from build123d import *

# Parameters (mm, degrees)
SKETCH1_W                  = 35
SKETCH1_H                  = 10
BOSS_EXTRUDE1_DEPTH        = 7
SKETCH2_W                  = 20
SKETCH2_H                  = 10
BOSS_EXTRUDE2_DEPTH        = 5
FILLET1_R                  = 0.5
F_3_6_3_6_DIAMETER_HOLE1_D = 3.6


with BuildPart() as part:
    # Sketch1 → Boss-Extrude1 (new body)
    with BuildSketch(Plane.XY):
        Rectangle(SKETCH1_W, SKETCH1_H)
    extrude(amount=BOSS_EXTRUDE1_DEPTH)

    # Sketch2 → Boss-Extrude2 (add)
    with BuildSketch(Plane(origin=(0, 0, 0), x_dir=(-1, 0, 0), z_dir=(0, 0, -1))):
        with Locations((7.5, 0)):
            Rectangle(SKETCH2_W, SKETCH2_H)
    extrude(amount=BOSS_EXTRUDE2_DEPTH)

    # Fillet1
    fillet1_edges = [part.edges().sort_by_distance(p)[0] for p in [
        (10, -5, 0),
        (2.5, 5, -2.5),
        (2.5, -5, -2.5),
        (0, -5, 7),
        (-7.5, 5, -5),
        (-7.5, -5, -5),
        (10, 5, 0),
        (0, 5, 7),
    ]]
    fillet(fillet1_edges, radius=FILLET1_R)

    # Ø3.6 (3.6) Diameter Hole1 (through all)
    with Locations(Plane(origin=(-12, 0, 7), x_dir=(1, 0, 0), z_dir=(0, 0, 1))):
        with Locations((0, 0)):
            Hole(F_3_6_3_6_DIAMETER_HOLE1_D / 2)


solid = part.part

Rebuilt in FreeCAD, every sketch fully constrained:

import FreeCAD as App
import Part
import Sketcher


def edges_at(feature, points):
    """Names of the edges that pass closest to the given points."""
    edges = feature.Shape.Edges
    near = lambda p: min(range(len(edges)), key=lambda i: edges[i].distToShape(Part.Vertex(*p))[0])
    return sorted({f"Edge{near(p) + 1}" for p in points})

doc = App.newDocument("Part")
body = doc.addObject("PartDesign::Body", "Body")

# Sketch on XY plane
sketch1 = body.newObject("Sketcher::SketchObject", "Sketch")
sketch1.AttachmentSupport = (doc.getObject("XY_Plane"), [""])
sketch1.MapMode = "FlatFace"
sketch1.addGeometry(Part.LineSegment(App.Vector(-17.5, 5, 0), App.Vector(-17.5, -5, 0)), False)
sketch1.addGeometry(Part.LineSegment(App.Vector(-17.5, -5, 0), App.Vector(17.5, -5, 0)), False)
sketch1.addGeometry(Part.LineSegment(App.Vector(17.5, -5, 0), App.Vector(17.5, 5, 0)), False)
sketch1.addGeometry(Part.LineSegment(App.Vector(17.5, 5, 0), App.Vector(-17.5, 5, 0)), False)
sketch1.addConstraint(Sketcher.Constraint("Coincident", 0, 2, 1, 1))
sketch1.addConstraint(Sketcher.Constraint("Coincident", 1, 2, 2, 1))
sketch1.addConstraint(Sketcher.Constraint("Coincident", 2, 2, 3, 1))
sketch1.addConstraint(Sketcher.Constraint("Coincident", 3, 2, 0, 1))
sketch1.addConstraint(Sketcher.Constraint("Vertical", 0))
sketch1.addConstraint(Sketcher.Constraint("Horizontal", 1))
sketch1.addConstraint(Sketcher.Constraint("Vertical", 2))
sketch1.addConstraint(Sketcher.Constraint("Horizontal", 3))
sketch1.addConstraint(Sketcher.Constraint("Symmetric", 0, 2, 2, 2, -1, 1))
sketch1.addConstraint(Sketcher.Constraint("DistanceX", 1, 1, 1, 2, 35.0))
sketch1.addConstraint(Sketcher.Constraint("DistanceY", 0, 2, 0, 1, 10.0))
pad1 = body.newObject("PartDesign::Pad", "Pad")
pad1.Profile = sketch1
pad1.Length = 7

# Sketch on XY plane
sketch2 = body.newObject("Sketcher::SketchObject", "Sketch001")
sketch2.AttachmentSupport = (doc.getObject("XY_Plane"), [""])
sketch2.MapMode = "FlatFace"
sketch2.addGeometry(Part.LineSegment(App.Vector(2.5, 5, 0), App.Vector(2.5, -5, 0)), False)
sketch2.addGeometry(Part.LineSegment(App.Vector(2.5, -5, 0), App.Vector(-17.5, -5, 0)), False)
sketch2.addGeometry(Part.LineSegment(App.Vector(-17.5, -5, 0), App.Vector(-17.5, 5, 0)), False)
sketch2.addGeometry(Part.LineSegment(App.Vector(-17.5, 5, 0), App.Vector(2.5, 5, 0)), False)
sketch2.addConstraint(Sketcher.Constraint("Coincident", 0, 2, 1, 1))
sketch2.addConstraint(Sketcher.Constraint("Coincident", 1, 2, 2, 1))
sketch2.addConstraint(Sketcher.Constraint("Coincident", 2, 2, 3, 1))
sketch2.addConstraint(Sketcher.Constraint("Coincident", 3, 2, 0, 1))
sketch2.addConstraint(Sketcher.Constraint("Vertical", 0))
sketch2.addConstraint(Sketcher.Constraint("Horizontal", 1))
sketch2.addConstraint(Sketcher.Constraint("Vertical", 2))
sketch2.addConstraint(Sketcher.Constraint("Horizontal", 3))
sketch2.addConstraint(Sketcher.Constraint("DistanceX", 1, 2, 1, 1, 20.0))
sketch2.addConstraint(Sketcher.Constraint("DistanceY", 0, 2, 0, 1, 10.0))
sketch2.addConstraint(Sketcher.Constraint("DistanceY", 0, 2, -1, 1, 5.0))
sketch2.addConstraint(Sketcher.Constraint("DistanceX", -1, 1, 0, 2, 2.5))
pad2 = body.newObject("PartDesign::Pad", "Pad001")
pad2.Profile = sketch2
pad2.Length = 5
pad2.Reversed = True
doc.recompute()

fillet = body.newObject("PartDesign::Fillet", "Fillet")
fillet.Base = (pad2, edges_at(pad2, [
    (10, -5, 0),
    (2.5, 5, -2.5),
    (2.5, -5, -2.5),
    (0, -5, 7),
    (-7.5, 5, -5),
    (-7.5, -5, -5),
    (10, 5, 0),
    (0, 5, 7),
]))
fillet.Radius = 0.5

# Sketch on XY plane
sketch3 = body.newObject("Sketcher::SketchObject", "Sketch002")
sketch3.AttachmentSupport = (doc.getObject("XY_Plane"), [""])
sketch3.MapMode = "FlatFace"
sketch3.AttachmentOffset = App.Placement(App.Vector(0, 0, 7), App.Rotation())
sketch3.addGeometry(Part.Circle(App.Vector(-12, 0, 0), App.Vector(0, 0, 1), 1.8), False)
sketch3.addConstraint(Sketcher.Constraint("PointOnObject", 0, 3, -1))
sketch3.addConstraint(Sketcher.Constraint("Diameter", 0, 3.6))
sketch3.addConstraint(Sketcher.Constraint("DistanceX", 0, 3, -1, 1, 12.0))
doc.recompute()
hole = body.newObject("PartDesign::Hole", "Hole")
hole.Profile = sketch3
hole.ThreadType = "None"
hole.Diameter = 3.6
hole.DepthType = "ThroughAll"

doc.recompute()
